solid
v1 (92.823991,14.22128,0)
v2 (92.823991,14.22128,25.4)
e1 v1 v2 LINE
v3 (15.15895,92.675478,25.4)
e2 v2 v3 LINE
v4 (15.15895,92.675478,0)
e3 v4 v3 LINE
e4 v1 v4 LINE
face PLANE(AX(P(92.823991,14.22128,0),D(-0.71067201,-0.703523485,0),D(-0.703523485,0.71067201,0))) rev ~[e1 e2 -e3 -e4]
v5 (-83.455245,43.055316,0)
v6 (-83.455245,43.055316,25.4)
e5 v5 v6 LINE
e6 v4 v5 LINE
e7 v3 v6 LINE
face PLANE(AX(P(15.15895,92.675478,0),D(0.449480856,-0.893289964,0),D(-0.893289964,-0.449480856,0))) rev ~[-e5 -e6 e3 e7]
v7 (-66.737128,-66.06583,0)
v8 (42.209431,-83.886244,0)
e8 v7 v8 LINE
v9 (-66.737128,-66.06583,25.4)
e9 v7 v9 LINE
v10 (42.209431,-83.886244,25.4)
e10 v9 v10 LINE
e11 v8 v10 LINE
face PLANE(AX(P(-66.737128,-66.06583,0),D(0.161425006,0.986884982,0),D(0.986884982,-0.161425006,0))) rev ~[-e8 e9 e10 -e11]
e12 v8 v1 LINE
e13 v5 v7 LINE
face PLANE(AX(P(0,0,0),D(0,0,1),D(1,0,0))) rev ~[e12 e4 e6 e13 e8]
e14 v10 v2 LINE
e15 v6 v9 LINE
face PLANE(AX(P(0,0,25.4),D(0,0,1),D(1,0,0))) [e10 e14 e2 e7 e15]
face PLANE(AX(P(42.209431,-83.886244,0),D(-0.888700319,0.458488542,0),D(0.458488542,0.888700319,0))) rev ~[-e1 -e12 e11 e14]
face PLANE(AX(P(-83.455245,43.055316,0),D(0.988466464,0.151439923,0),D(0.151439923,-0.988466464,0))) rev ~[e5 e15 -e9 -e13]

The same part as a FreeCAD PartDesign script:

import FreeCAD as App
import Part
import Sketcher

V = App.Vector
Q = App.Units.Quantity


def add_polygon(sketch, points):
    """Adds a closed chain of lines whose ends are joined by coincident constraints."""
    first, n = sketch.GeometryCount, len(points)
    for a, b in zip(points, points[1:] + points[:1]):
        sketch.addGeometry(Part.LineSegment(App.Vector(*a, 0), App.Vector(*b, 0)), False)
    for i in range(n):
        sketch.addConstraint(Sketcher.Constraint("Coincident", first + i, 2, first + (i + 1) % n, 1))

doc = App.newDocument("Part")
body = doc.addObject("PartDesign::Body", "Body")

# Sketch on XY plane
sketch1 = body.newObject("Sketcher::SketchObject", "Sketch")
sketch1.AttachmentSupport = (doc.getObject("XY_Plane"), [""])
sketch1.MapMode = "FlatFace"
add_polygon(sketch1, [(42, -84), (93, 14), (15, 93), (-83, 43), (-67, -66)])  # lines 0-4
sketch1.addConstraint([
    Sketcher.Constraint("Equal", 0, 1),
    Sketcher.Constraint("Equal", 1, 2),
    Sketcher.Constraint("Equal", 2, 3),
    Sketcher.Constraint("Equal", 3, 4),
    Sketcher.Constraint("DistanceX", -1, 1, 0, 2, Q("92.823991 mm")),
    Sketcher.Constraint("DistanceY", -1, 1, 0, 2, Q("14.22128 mm")),
    Sketcher.Constraint("DistanceX", -1, 1, 1, 2, Q("15.15895 mm")),
    Sketcher.Constraint("DistanceY", -1, 1, 1, 2, Q("92.675478 mm")),
    Sketcher.Constraint("DistanceX", 3, 2, -1, 1, Q("66.737128 mm")),
    Sketcher.Constraint("DistanceY", 3, 2, -1, 1, Q("66.06583 mm")),
])
pad1 = body.newObject("PartDesign::Pad", "Pad")
pad1.Profile = sketch1
pad1.Length = Q("1 in")

doc.recompute()
